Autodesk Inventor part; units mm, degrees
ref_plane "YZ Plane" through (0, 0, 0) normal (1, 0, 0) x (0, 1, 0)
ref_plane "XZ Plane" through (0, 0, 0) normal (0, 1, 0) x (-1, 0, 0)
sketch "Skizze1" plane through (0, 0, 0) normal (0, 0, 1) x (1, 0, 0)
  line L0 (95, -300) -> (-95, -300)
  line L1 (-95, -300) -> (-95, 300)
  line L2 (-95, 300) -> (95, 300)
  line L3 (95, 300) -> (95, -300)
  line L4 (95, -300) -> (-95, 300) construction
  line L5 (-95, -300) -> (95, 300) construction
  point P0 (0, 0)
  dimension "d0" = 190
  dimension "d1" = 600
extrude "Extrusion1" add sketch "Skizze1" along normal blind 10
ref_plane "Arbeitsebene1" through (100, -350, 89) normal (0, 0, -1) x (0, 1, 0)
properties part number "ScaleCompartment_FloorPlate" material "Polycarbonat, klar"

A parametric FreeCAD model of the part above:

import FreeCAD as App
import Part
import Sketcher

V = App.Vector
Q = App.Units.Quantity


def add_polygon(sketch, points):
    """Adds a closed chain of lines whose ends are joined by coincident constraints."""
    first, n = sketch.GeometryCount, len(points)
    for a, b in zip(points, points[1:] + points[:1]):
        sketch.addGeometry(Part.LineSegment(App.Vector(*a, 0), App.Vector(*b, 0)), False)
    for i in range(n):
        sketch.addConstraint(Sketcher.Constraint("Coincident", first + i, 2, first + (i + 1) % n, 1))

doc = App.newDocument("Part")
body = doc.addObject("PartDesign::Body", "Body")

sketch1 = body.newObject("Sketcher::SketchObject", "Sketch")
sketch1.AttachmentSupport = (doc.getObject("XY_Plane"), [""])
sketch1.MapMode = "FlatFace"
add_polygon(sketch1, [(-95, -300), (95, -300), (95, 300), (-95, 300)])
sketch1.addConstraint(Sketcher.Constraint("Horizontal", 0))
sketch1.addConstraint(Sketcher.Constraint("Vertical", 1))
sketch1.addConstraint(Sketcher.Constraint("Horizontal", 2))
sketch1.addConstraint(Sketcher.Constraint("Vertical", 3))
sketch1.addConstraint(Sketcher.Constraint("Symmetric", 0, 2, 2, 2, -1, 1))
sketch1.addConstraint(Sketcher.Constraint("DistanceX", 0, 1, 0, 2, Q("190 mm")))
sketch1.addConstraint(Sketcher.Constraint("DistanceY", 1, 1, 1, 2, Q("600 mm")))
pad1 = body.newObject("PartDesign::Pad", "Pad")
pad1.Profile = sketch1
pad1.Length = 10

doc.recompute()
